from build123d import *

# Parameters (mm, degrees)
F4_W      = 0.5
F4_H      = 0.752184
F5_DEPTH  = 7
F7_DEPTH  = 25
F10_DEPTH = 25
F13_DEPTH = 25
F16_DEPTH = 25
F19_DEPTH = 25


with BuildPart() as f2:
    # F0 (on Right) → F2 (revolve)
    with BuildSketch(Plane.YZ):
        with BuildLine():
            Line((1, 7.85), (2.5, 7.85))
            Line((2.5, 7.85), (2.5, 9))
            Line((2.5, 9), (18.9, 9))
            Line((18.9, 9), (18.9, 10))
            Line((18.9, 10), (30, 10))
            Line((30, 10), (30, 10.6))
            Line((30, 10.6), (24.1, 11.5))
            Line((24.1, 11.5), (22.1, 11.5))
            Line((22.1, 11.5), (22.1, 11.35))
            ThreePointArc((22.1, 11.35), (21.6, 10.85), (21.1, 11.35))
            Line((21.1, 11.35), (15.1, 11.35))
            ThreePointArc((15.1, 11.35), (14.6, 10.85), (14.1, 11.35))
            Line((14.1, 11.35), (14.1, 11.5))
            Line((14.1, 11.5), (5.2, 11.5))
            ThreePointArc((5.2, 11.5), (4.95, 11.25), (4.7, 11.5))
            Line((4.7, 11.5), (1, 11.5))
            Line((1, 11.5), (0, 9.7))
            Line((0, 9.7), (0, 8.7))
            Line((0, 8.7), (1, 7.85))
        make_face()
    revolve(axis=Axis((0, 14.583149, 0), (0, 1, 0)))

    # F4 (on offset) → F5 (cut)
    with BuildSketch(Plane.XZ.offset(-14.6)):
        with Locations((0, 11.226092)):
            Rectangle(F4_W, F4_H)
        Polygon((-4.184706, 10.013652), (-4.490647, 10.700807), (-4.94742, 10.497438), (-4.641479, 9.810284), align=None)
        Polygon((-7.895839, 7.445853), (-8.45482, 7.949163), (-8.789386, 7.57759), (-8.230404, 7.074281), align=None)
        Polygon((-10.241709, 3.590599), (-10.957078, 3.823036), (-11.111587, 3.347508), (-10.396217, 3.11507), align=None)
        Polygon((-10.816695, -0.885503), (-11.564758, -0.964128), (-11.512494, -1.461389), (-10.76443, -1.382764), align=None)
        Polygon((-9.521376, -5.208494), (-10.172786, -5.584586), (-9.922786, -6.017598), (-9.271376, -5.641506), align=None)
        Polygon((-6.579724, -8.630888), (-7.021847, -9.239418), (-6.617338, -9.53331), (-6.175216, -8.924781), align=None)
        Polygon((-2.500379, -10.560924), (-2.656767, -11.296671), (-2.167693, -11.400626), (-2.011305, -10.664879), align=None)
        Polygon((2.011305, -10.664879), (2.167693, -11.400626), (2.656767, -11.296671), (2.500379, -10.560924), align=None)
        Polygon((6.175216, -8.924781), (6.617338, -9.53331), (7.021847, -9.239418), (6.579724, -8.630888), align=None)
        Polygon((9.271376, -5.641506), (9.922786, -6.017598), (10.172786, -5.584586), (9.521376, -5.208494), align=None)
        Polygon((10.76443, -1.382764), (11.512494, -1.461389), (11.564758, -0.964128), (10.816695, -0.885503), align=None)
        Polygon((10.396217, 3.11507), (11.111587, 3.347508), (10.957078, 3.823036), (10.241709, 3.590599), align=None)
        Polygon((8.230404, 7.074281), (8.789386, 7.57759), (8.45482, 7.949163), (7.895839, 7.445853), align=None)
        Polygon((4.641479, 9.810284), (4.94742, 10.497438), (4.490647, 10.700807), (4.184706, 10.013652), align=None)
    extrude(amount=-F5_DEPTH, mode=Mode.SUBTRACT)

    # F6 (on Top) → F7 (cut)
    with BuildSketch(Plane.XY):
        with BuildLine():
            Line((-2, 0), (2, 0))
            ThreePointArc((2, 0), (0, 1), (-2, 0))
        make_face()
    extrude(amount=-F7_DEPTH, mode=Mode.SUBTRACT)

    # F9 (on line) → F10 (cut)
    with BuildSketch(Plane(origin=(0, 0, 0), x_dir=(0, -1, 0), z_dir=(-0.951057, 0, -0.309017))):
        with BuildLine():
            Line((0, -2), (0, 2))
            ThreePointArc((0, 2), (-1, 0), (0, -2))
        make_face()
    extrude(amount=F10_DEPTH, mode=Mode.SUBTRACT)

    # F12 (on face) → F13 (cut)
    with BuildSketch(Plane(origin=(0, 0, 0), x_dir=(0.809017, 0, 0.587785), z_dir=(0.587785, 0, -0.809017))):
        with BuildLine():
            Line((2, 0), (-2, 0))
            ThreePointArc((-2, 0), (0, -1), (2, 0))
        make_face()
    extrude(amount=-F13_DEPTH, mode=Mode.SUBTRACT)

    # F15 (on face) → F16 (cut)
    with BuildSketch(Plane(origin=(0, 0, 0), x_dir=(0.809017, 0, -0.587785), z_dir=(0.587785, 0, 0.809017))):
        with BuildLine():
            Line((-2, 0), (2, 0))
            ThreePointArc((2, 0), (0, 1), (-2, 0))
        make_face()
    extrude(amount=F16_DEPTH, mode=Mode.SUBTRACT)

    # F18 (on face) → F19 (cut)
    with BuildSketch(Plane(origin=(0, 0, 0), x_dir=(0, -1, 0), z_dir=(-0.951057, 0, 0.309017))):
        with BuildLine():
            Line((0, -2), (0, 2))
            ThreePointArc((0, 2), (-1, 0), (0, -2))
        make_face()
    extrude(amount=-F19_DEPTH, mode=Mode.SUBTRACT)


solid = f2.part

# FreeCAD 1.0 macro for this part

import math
import FreeCAD as App
import Part
import Sketcher
Q = App.Units.Quantity


def add_polygon(sketch, points):
    """Adds a closed chain of lines whose ends are joined by coincident constraints."""
    first, n = sketch.GeometryCount, len(points)
    for a, b in zip(points, points[1:] + points[:1]):
        sketch.addGeometry(Part.LineSegment(App.Vector(*a, 0), App.Vector(*b, 0)), False)
    for i in range(n):
        sketch.addConstraint(Sketcher.Constraint("Coincident", first + i, 2, first + (i + 1) % n, 1))

doc = App.newDocument("Part")
body = doc.addObject("PartDesign::Body", "Body")

# Sketch on YZ plane
sketch1 = body.newObject("Sketcher::SketchObject", "Sketch")
sketch1.AttachmentSupport = (doc.getObject("YZ_Plane"), [""])
sketch1.MapMode = "FlatFace"
sketch1.addGeometry([
    Part.LineSegment(App.Vector(1, 7.85, 0), App.Vector(2.5, 7.85, 0)),  # 0
    Part.LineSegment(App.Vector(2.5, 7.85, 0), App.Vector(2.5, 9, 0)),  # 1
    Part.LineSegment(App.Vector(2.5, 9, 0), App.Vector(18.9, 9, 0)),  # 2
    Part.LineSegment(App.Vector(18.9, 9, 0), App.Vector(18.9, 10, 0)),  # 3
    Part.LineSegment(App.Vector(18.9, 10, 0), App.Vector(30, 10, 0)),  # 4
    Part.LineSegment(App.Vector(30, 10, 0), App.Vector(30, 10.6, 0)),  # 5
    Part.LineSegment(App.Vector(30, 10.6, 0), App.Vector(24.1, 11.5, 0)),  # 6
    Part.LineSegment(App.Vector(24.1, 11.5, 0), App.Vector(22.1, 11.5, 0)),  # 7
    Part.LineSegment(App.Vector(22.1, 11.5, 0), App.Vector(22.1, 11.35, 0)),  # 8
    Part.ArcOfCircle(Part.Circle(App.Vector(21.6, 11.35, 0), App.Vector(0, 0, 1), 0.5), math.radians(180), math.radians(360)),  # 9
    Part.LineSegment(App.Vector(21.1, 11.35, 0), App.Vector(15.1, 11.35, 0)),  # 10
    Part.ArcOfCircle(Part.Circle(App.Vector(14.6, 11.35, 0), App.Vector(0, 0, 1), 0.5), math.radians(180), math.radians(360)),  # 11
    Part.LineSegment(App.Vector(14.1, 11.35, 0), App.Vector(14.1, 11.5, 0)),  # 12
    Part.LineSegment(App.Vector(14.1, 11.5, 0), App.Vector(5.2, 11.5, 0)),  # 13
    Part.ArcOfCircle(Part.Circle(App.Vector(4.95, 11.5, 0), App.Vector(0, 0, 1), 0.25), math.radians(180), math.radians(360)),  # 14
    Part.LineSegment(App.Vector(4.7, 11.5, 0), App.Vector(1, 11.5, 0)),  # 15
    Part.LineSegment(App.Vector(1, 11.5, 0), App.Vector(0, 9.7, 0)),  # 16
    Part.LineSegment(App.Vector(0, 9.7, 0), App.Vector(0, 8.7, 0)),  # 17
    Part.LineSegment(App.Vector(0, 8.7, 0), App.Vector(1, 7.85, 0)),  # 18
], False)
sketch1.addConstraint([
    Sketcher.Constraint("Coincident", 0, 2, 1, 1),
    Sketcher.Constraint("Coincident", 1, 2, 2, 1),
    Sketcher.Constraint("Coincident", 2, 2, 3, 1),
    Sketcher.Constraint("Coincident", 3, 2, 4, 1),
    Sketcher.Constraint("Coincident", 4, 2, 5, 1),
    Sketcher.Constraint("Coincident", 5, 2, 6, 1),
    Sketcher.Constraint("Coincident", 6, 2, 7, 1),
    Sketcher.Constraint("Coincident", 7, 2, 8, 1),
    Sketcher.Constraint("Tangent", 8, 2, 9, 2),
    Sketcher.Constraint("Coincident", 9, 1, 10, 1),
    Sketcher.Constraint("Coincident", 10, 2, 11, 2),
    Sketcher.Constraint("Tangent", 11, 1, 12, 1),
    Sketcher.Constraint("Coincident", 12, 2, 13, 1),
    Sketcher.Constraint("Coincident", 13, 2, 14, 2),
    Sketcher.Constraint("Coincident", 14, 1, 15, 1),
    Sketcher.Constraint("Coincident", 15, 2, 16, 1),
    Sketcher.Constraint("Coincident", 16, 2, 17, 1),
    Sketcher.Constraint("Coincident", 17, 2, 18, 1),
    Sketcher.Constraint("Coincident", 18, 2, 0, 1),
    Sketcher.Constraint("Horizontal", 0),
    Sketcher.Constraint("Vertical", 1),
    Sketcher.Constraint("Horizontal", 2),
    Sketcher.Constraint("Vertical", 3),
    Sketcher.Constraint("Horizontal", 4),
    Sketcher.Constraint("Vertical", 5),
    Sketcher.Constraint("Horizontal", 7),
    Sketcher.Constraint("Vertical", 8),
    Sketcher.Constraint("Horizontal", 10),
    Sketcher.Constraint("Vertical", 12),
    Sketcher.Constraint("Horizontal", 13),
    Sketcher.Constraint("Horizontal", 15),
    Sketcher.Constraint("Vertical", 17),
    Sketcher.Constraint("Equal", 9, 11),
    Sketcher.Constraint("PointOnObject", 16, 2, -2),
    Sketcher.Constraint("Horizontal", 9, 3, 11, 3),
    Sketcher.Constraint("Horizontal", 14, 3, 6, 2),
    Sketcher.Constraint("Horizontal", 8, 2, 9, 1),
    Sketcher.Constraint("Horizontal", 7, 2, 12, 2),
    Sketcher.Constraint("Horizontal", 13, 2, 14, 1),
    Sketcher.Constraint("Vertical", 15, 2, 18, 2),
    Sketcher.Constraint("Equal", 3, 17),
    Sketcher.Constraint("Radius", 9, 0.5),
    Sketcher.Constraint("DistanceX", 7, 2, 7, 1, 2.0),
    Sketcher.Constraint("DistanceX", 10, 2, 10, 1, 6.0),
    Sketcher.Constraint("DistanceY", 3, 1, 3, 2, 1.0),
    Sketcher.Constraint("Radius", 14, 0.25),
    Sketcher.Constraint("DistanceX", 0, 1, 0, 2, 1.5),
    Sketcher.Constraint("DistanceX", 2, 1, 2, 2, 16.4),
    Sketcher.Constraint("DistanceX", 4, 1, 4, 2, 11.1),
    Sketcher.Constraint("DistanceX", 13, 2, 13, 1, 8.9),
    Sketcher.Constraint("DistanceX", 15, 2, 15, 1, 3.7),
    Sketcher.Constraint("DistanceY", 5, 1, 5, 2, 0.6),
    Sketcher.Constraint("DistanceY", -1, 1, 1, 2, 9.0),
    Sketcher.Constraint("DistanceX", -1, 1, 4, 2, 30.0),
    Sketcher.Constraint("DistanceY", 1, 1, 1, 2, 1.15),
    Sketcher.Constraint("DistanceY", 8, 2, 8, 1, 0.15),
    Sketcher.Constraint("DistanceY", -1, 1, 14, 3, 11.5),
    Sketcher.Constraint("DistanceY", -1, 1, 16, 2, 9.7),
])
revolution = body.newObject("PartDesign::Revolution", "Revolution")
revolution.Profile = sketch1
revolution.ReferenceAxis = (sketch1, ["H_Axis"])
revolution.Angle = 360

# Sketch on XZ plane
sketch2 = body.newObject("Sketcher::SketchObject", "Sketch001")
sketch2.AttachmentSupport = (doc.getObject("XZ_Plane"), [""])
sketch2.MapMode = "FlatFace"
sketch2.AttachmentOffset = App.Placement(App.Vector(0, 0, -14.6), App.Rotation())
add_polygon(sketch2, [(-0.25, 11.6), (-0.25, 10.85), (0.25, 10.85), (0.25, 11.6)])  # lines 0-3
add_polygon(sketch2, [(-4.18, 10.01), (-4.49, 10.7), (-4.95, 10.5), (-4.64, 9.81)])  # lines 4-7
add_polygon(sketch2, [(-7.9, 7.45), (-8.45, 7.95), (-8.79, 7.58), (-8.23, 7.07)])  # lines 8-11
add_polygon(sketch2, [(-10.24, 3.59), (-10.96, 3.82), (-11.11, 3.35), (-10.4, 3.12)])  # lines 12-15
add_polygon(sketch2, [(-10.82, -0.89), (-11.56, -0.96), (-11.51, -1.46), (-10.76, -1.38)])  # lines 16-19
add_polygon(sketch2, [(-9.52, -5.21), (-10.17, -5.58), (-9.92, -6.02), (-9.27, -5.64)])  # lines 20-23
add_polygon(sketch2, [(-6.58, -8.63), (-7.02, -9.24), (-6.62, -9.53), (-6.18, -8.92)])  # lines 24-27
add_polygon(sketch2, [(-2.5, -10.56), (-2.66, -11.3), (-2.17, -11.4), (-2.01, -10.66)])  # lines 28-31
add_polygon(sketch2, [(2.01, -10.66), (2.17, -11.4), (2.66, -11.3), (2.5, -10.56)])  # lines 32-35
add_polygon(sketch2, [(6.18, -8.92), (6.62, -9.53), (7.02, -9.24), (6.58, -8.63)])  # lines 36-39
add_polygon(sketch2, [(9.27, -5.64), (9.92, -6.02), (10.17, -5.58), (9.52, -5.21)])  # lines 40-43
add_polygon(sketch2, [(10.76, -1.38), (11.51, -1.46), (11.56, -0.96), (10.82, -0.89)])  # lines 44-47
add_polygon(sketch2, [(10.4, 3.12), (11.11, 3.35), (10.96, 3.82), (10.24, 3.59)])  # lines 48-51
add_polygon(sketch2, [(8.23, 7.07), (8.79, 7.58), (8.45, 7.95), (7.9, 7.45)])  # lines 52-55
add_polygon(sketch2, [(4.64, 9.81), (4.95, 10.5), (4.49, 10.7), (4.18, 10.01)])  # lines 56-59
sketch2.addConstraint([
    Sketcher.Constraint("Vertical", 0),
    Sketcher.Constraint("Horizontal", 1),
    Sketcher.Constraint("Vertical", 2),
    Sketcher.Constraint("Horizontal", 3),
    Sketcher.Constraint("Symmetric", 29, 2, 32, 2, -2),
    Sketcher.Constraint("Symmetric", 28, 2, 33, 2, -2),
    Sketcher.Constraint("Symmetric", 31, 2, 34, 2, -2),
    Sketcher.Constraint("Symmetric", 30, 2, 35, 2, -2),
    Sketcher.Constraint("Symmetric", 25, 2, 36, 2, -2),
    Sketcher.Constraint("Symmetric", 24, 2, 37, 2, -2),
    Sketcher.Constraint("Symmetric", 27, 2, 38, 2, -2),
    Sketcher.Constraint("Symmetric", 26, 2, 39, 2, -2),
    Sketcher.Constraint("Symmetric", 21, 2, 40, 2, -2),
    Sketcher.Constraint("Symmetric", 20, 2, 41, 2, -2),
    Sketcher.Constraint("Symmetric", 23, 2, 42, 2, -2),
    Sketcher.Constraint("Symmetric", 22, 2, 43, 2, -2),
    Sketcher.Constraint("Symmetric", 17, 2, 44, 2, -2),
    Sketcher.Constraint("Symmetric", 16, 2, 45, 2, -2),
    Sketcher.Constraint("Symmetric", 19, 2, 46, 2, -2),
    Sketcher.Constraint("Symmetric", 18, 2, 47, 2, -2),
    Sketcher.Constraint("Symmetric", 13, 2, 48, 2, -2),
    Sketcher.Constraint("Symmetric", 12, 2, 49, 2, -2),
    Sketcher.Constraint("Symmetric", 15, 2, 50, 2, -2),
    Sketcher.Constraint("Symmetric", 14, 2, 51, 2, -2),
    Sketcher.Constraint("Symmetric", 9, 2, 52, 2, -2),
    Sketcher.Constraint("Symmetric", 8, 2, 53, 2, -2),
    Sketcher.Constraint("Symmetric", 11, 2, 54, 2, -2),
    Sketcher.Constraint("Symmetric", 10, 2, 55, 2, -2),
    Sketcher.Constraint("Symmetric", 5, 2, 56, 2, -2),
    Sketcher.Constraint("Symmetric", 4, 2, 57, 2, -2),
    Sketcher.Constraint("Symmetric", 7, 2, 58, 2, -2),
    Sketcher.Constraint("Symmetric", 6, 2, 59, 2, -2),
    Sketcher.Constraint("Perpendicular", 4, 5),
    Sketcher.Constraint("Perpendicular", 5, 6),
    Sketcher.Constraint("Perpendicular", 6, 7),
    Sketcher.Constraint("Perpendicular", 8, 9),
    Sketcher.Constraint("Perpendicular", 9, 10),
    Sketcher.Constraint("Perpendicular", 10, 11),
    Sketcher.Constraint("Perpendicular", 12, 13),
    Sketcher.Constraint("Perpendicular", 13, 14),
    Sketcher.Constraint("Perpendicular", 14, 15),
    Sketcher.Constraint("Perpendicular", 16, 17),
    Sketcher.Constraint("Perpendicular", 17, 18),
    Sketcher.Constraint("Perpendicular", 18, 19),
    Sketcher.Constraint("Perpendicular", 20, 21),
    Sketcher.Constraint("Perpendicular", 21, 22),
    Sketcher.Constraint("Perpendicular", 22, 23),
    Sketcher.Constraint("Perpendicular", 24, 25),
    Sketcher.Constraint("Perpendicular", 25, 26),
    Sketcher.Constraint("Perpendicular", 26, 27),
    Sketcher.Constraint("Perpendicular", 28, 29),
    Sketcher.Constraint("Perpendicular", 29, 30),
    Sketcher.Constraint("Perpendicular", 30, 31),
    Sketcher.Constraint("Equal", 6, 8),
    Sketcher.Constraint("Equal", 7, 9),
    Sketcher.Constraint("Equal", 10, 12),
    Sketcher.Constraint("Equal", 11, 13),
    Sketcher.Constraint("Equal", 14, 16),
    Sketcher.Constraint("Equal", 15, 17),
    Sketcher.Constraint("Equal", 18, 20),
    Sketcher.Constraint("Equal", 19, 21),
    Sketcher.Constraint("Equal", 22, 24),
    Sketcher.Constraint("Equal", 23, 25),
    Sketcher.Constraint("Equal", 26, 28),
    Sketcher.Constraint("Equal", 27, 29),
    Sketcher.Constraint("Angle", 4, Q("113.999992 deg")),
    Sketcher.Constraint("Angle", 9, Q("-132.000014 deg")),
    Sketcher.Constraint("Angle", 14, Q("-18.000014 deg")),
    Sketcher.Constraint("Angle", 20, Q("-149.999983 deg")),
    Sketcher.Constraint("Angle", 24, Q("-126.000005 deg")),
    Sketcher.Constraint("Angle", 28, Q("-102.000011 deg")),
    Sketcher.Constraint("DistanceX", 1, 1, 1, 2, 0.5),
    Sketcher.Constraint("Distance", 5, 0.500001),
    Sketcher.Constraint("DistanceX", 0, 2, -1, 1, 0.25),
    Sketcher.Constraint("DistanceY", -1, 1, 0, 2, 10.85),
    Sketcher.Constraint("DistanceY", -1, 1, 15, 2, 3.590599),
    Sketcher.Constraint("DistanceY", 6, 2, 3, 2, 1.7919),
    Sketcher.Constraint("DistanceX", 8, 2, 5, 2, 3.5074),
    Sketcher.Constraint("DistanceX", 12, 2, 6, 2, 6.315599),
    Sketcher.Constraint("DistanceX", 13, 2, 9, 2, 2.322201),
    Sketcher.Constraint("DistanceX", 17, 2, 19, 2, 0.695799),
    Sketcher.Constraint("DistanceY", 30, 2, 26, 2, 1.740098),
    Sketcher.Constraint("DistanceY", 38, 2, 44, 2, 7.169499),
    Sketcher.Constraint("DistanceY", 47, 2, 49, 2, 5.2058),
    Sketcher.Constraint("DistanceY", 0, 2, 0, 1, 0.752184),
    Sketcher.Constraint("DistanceX", 5, 2, -1, 1, 4.94742),
    Sketcher.Constraint("DistanceY", -1, 1, 9, 2, 7.57759),
    Sketcher.Constraint("DistanceX", 18, 2, -1, 1, 10.76443),
    Sketcher.Constraint("DistanceX", 31, 2, -1, 1, 2.500379),
    Sketcher.Constraint("DistanceX", 19, 2, 20, 2, 0.643909),
    Sketcher.Constraint("DistanceY", 20, 2, 16, 2, 4.620458),
    Sketcher.Constraint("DistanceX", 22, 2, 24, 2, 2.249529),
])
pocket1 = body.newObject("PartDesign::Pocket", "Pocket")
pocket1.Profile = sketch2
pocket1.Length = 7

# Sketch on XY plane
sketch3 = body.newObject("Sketcher::SketchObject", "Sketch002")
sketch3.AttachmentSupport = (doc.getObject("XY_Plane"), [""])
sketch3.MapMode = "FlatFace"
sketch3.addGeometry([
    Part.LineSegment(App.Vector(-2, 0, 0), App.Vector(2, 0, 0)),
    Part.ArcOfCircle(Part.Circle(App.Vector(0, -1.5, 0), App.Vector(0, 0, 1), 2.5), math.radians(37), math.radians(143)),
], False)
sketch3.addConstraint([
    Sketcher.Constraint("Coincident", 0, 1, 1, 2),
    Sketcher.Constraint("Coincident", 1, 1, 0, 2),
    Sketcher.Constraint("Horizontal", 0),
    Sketcher.Constraint("Symmetric", 0, 1, 1, 1, -1, 1),
    Sketcher.Constraint("Radius", 1, 2.5),
    Sketcher.Constraint("DistanceX", 0, 1, 0, 2, 4.0),
])
pocket2 = body.newObject("PartDesign::Pocket", "Pocket001")
pocket2.Profile = sketch3
pocket2.Length = 25

# Sketch on an angled plane
sketch4 = body.newObject("Sketcher::SketchObject", "Sketch003")
sketch4.Placement = App.Placement(App.Vector(0, 0, 0), App.Rotation(App.Vector(0, -1, 0), App.Vector(-0.309016857, 0, 0.951056561), App.Vector(-0.951056561, 0, -0.309016857), "ZXY"))
sketch4.addGeometry([
    Part.LineSegment(App.Vector(0, -2, 0), App.Vector(0, 2, 0)),
    Part.ArcOfCircle(Part.Circle(App.Vector(1.5, 0, 0), App.Vector(0, 0, 1), 2.5), math.radians(127), math.radians(233)),
], False)
sketch4.addConstraint([
    Sketcher.Constraint("Coincident", 0, 1, 1, 2),
    Sketcher.Constraint("Coincident", 1, 1, 0, 2),
    Sketcher.Constraint("Vertical", 0),
    Sketcher.Constraint("Symmetric", 0, 1, 1, 1, -1, 1),
    Sketcher.Constraint("Radius", 1, 2.5),
    Sketcher.Constraint("DistanceY", 0, 1, 0, 2, 4.0),
])
pocket3 = body.newObject("PartDesign::Pocket", "Pocket002")
pocket3.Profile = sketch4
pocket3.Length = 25
pocket3.Reversed = True

# Sketch on an angled plane
sketch5 = body.newObject("Sketcher::SketchObject", "Sketch004")
sketch5.Placement = App.Placement(App.Vector(0, 0, 0), App.Rotation(App.Vector(0.809017116, 0, 0.587785084), App.Vector(0, -0.999999999, 0), App.Vector(0.587785084, 0, -0.809017116), "ZXY"))
sketch5.addGeometry([
    Part.LineSegment(App.Vector(2, 0, 0), App.Vector(-2, 0, 0)),
    Part.ArcOfCircle(Part.Circle(App.Vector(0, 1.5, 0), App.Vector(0, 0, 1), 2.5), math.radians(-143), math.radians(-37)),
], False)
sketch5.addConstraint([
    Sketcher.Constraint("Coincident", 0, 1, 1, 2),
    Sketcher.Constraint("Coincident", 1, 1, 0, 2),
    Sketcher.Constraint("Horizontal", 0),
    Sketcher.Constraint("Symmetric", 0, 1, 1, 1, -1, 1),
    Sketcher.Constraint("Radius", 1, 2.5),
    Sketcher.Constraint("DistanceX", 0, 2, 0, 1, 4.0),
])
pocket4 = body.newObject("PartDesign::Pocket", "Pocket003")
pocket4.Profile = sketch5
pocket4.Length = 25

# Sketch on an angled plane
sketch6 = body.newObject("Sketcher::SketchObject", "Sketch005")
sketch6.Placement = App.Placement(App.Vector(0, 0, 0), App.Rotation(App.Vector(0.809017116, 0, -0.587785084), App.Vector(0, 0.999999999, 0), App.Vector(0.587785084, 0, 0.809017116), "ZXY"))
sketch6.addGeometry([
    Part.LineSegment(App.Vector(-2, 0, 0), App.Vector(2, 0, 0)),
    Part.ArcOfCircle(Part.Circle(App.Vector(0, -1.5, 0), App.Vector(0, 0, 1), 2.5), math.radians(37), math.radians(143)),
], False)
sketch6.addConstraint([
    Sketcher.Constraint("Coincident", 0, 1, 1, 2),
    Sketcher.Constraint("Coincident", 1, 1, 0, 2),
    Sketcher.Constraint("Horizontal", 0),
    Sketcher.Constraint("Symmetric", 0, 1, 1, 1, -1, 1),
    Sketcher.Constraint("Radius", 1, 2.5),
    Sketcher.Constraint("DistanceX", 0, 1, 0, 2, 4.0),
])
pocket5 = body.newObject("PartDesign::Pocket", "Pocket004")
pocket5.Profile = sketch6
pocket5.Length = 25
pocket5.Reversed = True

# Sketch on an angled plane
sketch7 = body.newObject("Sketcher::SketchObject", "Sketch006")
sketch7.Placement = App.Placement(App.Vector(0, 0, 0), App.Rotation(App.Vector(0, -1, 0), App.Vector(0.309016857, 0, 0.951056561), App.Vector(-0.951056561, 0, 0.309016857), "ZXY"))
sketch7.addGeometry([
    Part.LineSegment(App.Vector(0, -2, 0), App.Vector(0, 2, 0)),
    Part.ArcOfCircle(Part.Circle(App.Vector(1.5, 0, 0), App.Vector(0, 0, 1), 2.5), math.radians(127), math.radians(233)),
], False)
sketch7.addConstraint([
    Sketcher.Constraint("Coincident", 0, 1, 1, 2),
    Sketcher.Constraint("Coincident", 1, 1, 0, 2),
    Sketcher.Constraint("Vertical", 0),
    Sketcher.Constraint("Symmetric", 0, 1, 1, 1, -1, 1),
    Sketcher.Constraint("Radius", 1, 2.5),
    Sketcher.Constraint("DistanceY", 0, 1, 0, 2, 4.0),
])
pocket6 = body.newObject("PartDesign::Pocket", "Pocket005")
pocket6.Profile = sketch7
pocket6.Length = 25

doc.recompute()
